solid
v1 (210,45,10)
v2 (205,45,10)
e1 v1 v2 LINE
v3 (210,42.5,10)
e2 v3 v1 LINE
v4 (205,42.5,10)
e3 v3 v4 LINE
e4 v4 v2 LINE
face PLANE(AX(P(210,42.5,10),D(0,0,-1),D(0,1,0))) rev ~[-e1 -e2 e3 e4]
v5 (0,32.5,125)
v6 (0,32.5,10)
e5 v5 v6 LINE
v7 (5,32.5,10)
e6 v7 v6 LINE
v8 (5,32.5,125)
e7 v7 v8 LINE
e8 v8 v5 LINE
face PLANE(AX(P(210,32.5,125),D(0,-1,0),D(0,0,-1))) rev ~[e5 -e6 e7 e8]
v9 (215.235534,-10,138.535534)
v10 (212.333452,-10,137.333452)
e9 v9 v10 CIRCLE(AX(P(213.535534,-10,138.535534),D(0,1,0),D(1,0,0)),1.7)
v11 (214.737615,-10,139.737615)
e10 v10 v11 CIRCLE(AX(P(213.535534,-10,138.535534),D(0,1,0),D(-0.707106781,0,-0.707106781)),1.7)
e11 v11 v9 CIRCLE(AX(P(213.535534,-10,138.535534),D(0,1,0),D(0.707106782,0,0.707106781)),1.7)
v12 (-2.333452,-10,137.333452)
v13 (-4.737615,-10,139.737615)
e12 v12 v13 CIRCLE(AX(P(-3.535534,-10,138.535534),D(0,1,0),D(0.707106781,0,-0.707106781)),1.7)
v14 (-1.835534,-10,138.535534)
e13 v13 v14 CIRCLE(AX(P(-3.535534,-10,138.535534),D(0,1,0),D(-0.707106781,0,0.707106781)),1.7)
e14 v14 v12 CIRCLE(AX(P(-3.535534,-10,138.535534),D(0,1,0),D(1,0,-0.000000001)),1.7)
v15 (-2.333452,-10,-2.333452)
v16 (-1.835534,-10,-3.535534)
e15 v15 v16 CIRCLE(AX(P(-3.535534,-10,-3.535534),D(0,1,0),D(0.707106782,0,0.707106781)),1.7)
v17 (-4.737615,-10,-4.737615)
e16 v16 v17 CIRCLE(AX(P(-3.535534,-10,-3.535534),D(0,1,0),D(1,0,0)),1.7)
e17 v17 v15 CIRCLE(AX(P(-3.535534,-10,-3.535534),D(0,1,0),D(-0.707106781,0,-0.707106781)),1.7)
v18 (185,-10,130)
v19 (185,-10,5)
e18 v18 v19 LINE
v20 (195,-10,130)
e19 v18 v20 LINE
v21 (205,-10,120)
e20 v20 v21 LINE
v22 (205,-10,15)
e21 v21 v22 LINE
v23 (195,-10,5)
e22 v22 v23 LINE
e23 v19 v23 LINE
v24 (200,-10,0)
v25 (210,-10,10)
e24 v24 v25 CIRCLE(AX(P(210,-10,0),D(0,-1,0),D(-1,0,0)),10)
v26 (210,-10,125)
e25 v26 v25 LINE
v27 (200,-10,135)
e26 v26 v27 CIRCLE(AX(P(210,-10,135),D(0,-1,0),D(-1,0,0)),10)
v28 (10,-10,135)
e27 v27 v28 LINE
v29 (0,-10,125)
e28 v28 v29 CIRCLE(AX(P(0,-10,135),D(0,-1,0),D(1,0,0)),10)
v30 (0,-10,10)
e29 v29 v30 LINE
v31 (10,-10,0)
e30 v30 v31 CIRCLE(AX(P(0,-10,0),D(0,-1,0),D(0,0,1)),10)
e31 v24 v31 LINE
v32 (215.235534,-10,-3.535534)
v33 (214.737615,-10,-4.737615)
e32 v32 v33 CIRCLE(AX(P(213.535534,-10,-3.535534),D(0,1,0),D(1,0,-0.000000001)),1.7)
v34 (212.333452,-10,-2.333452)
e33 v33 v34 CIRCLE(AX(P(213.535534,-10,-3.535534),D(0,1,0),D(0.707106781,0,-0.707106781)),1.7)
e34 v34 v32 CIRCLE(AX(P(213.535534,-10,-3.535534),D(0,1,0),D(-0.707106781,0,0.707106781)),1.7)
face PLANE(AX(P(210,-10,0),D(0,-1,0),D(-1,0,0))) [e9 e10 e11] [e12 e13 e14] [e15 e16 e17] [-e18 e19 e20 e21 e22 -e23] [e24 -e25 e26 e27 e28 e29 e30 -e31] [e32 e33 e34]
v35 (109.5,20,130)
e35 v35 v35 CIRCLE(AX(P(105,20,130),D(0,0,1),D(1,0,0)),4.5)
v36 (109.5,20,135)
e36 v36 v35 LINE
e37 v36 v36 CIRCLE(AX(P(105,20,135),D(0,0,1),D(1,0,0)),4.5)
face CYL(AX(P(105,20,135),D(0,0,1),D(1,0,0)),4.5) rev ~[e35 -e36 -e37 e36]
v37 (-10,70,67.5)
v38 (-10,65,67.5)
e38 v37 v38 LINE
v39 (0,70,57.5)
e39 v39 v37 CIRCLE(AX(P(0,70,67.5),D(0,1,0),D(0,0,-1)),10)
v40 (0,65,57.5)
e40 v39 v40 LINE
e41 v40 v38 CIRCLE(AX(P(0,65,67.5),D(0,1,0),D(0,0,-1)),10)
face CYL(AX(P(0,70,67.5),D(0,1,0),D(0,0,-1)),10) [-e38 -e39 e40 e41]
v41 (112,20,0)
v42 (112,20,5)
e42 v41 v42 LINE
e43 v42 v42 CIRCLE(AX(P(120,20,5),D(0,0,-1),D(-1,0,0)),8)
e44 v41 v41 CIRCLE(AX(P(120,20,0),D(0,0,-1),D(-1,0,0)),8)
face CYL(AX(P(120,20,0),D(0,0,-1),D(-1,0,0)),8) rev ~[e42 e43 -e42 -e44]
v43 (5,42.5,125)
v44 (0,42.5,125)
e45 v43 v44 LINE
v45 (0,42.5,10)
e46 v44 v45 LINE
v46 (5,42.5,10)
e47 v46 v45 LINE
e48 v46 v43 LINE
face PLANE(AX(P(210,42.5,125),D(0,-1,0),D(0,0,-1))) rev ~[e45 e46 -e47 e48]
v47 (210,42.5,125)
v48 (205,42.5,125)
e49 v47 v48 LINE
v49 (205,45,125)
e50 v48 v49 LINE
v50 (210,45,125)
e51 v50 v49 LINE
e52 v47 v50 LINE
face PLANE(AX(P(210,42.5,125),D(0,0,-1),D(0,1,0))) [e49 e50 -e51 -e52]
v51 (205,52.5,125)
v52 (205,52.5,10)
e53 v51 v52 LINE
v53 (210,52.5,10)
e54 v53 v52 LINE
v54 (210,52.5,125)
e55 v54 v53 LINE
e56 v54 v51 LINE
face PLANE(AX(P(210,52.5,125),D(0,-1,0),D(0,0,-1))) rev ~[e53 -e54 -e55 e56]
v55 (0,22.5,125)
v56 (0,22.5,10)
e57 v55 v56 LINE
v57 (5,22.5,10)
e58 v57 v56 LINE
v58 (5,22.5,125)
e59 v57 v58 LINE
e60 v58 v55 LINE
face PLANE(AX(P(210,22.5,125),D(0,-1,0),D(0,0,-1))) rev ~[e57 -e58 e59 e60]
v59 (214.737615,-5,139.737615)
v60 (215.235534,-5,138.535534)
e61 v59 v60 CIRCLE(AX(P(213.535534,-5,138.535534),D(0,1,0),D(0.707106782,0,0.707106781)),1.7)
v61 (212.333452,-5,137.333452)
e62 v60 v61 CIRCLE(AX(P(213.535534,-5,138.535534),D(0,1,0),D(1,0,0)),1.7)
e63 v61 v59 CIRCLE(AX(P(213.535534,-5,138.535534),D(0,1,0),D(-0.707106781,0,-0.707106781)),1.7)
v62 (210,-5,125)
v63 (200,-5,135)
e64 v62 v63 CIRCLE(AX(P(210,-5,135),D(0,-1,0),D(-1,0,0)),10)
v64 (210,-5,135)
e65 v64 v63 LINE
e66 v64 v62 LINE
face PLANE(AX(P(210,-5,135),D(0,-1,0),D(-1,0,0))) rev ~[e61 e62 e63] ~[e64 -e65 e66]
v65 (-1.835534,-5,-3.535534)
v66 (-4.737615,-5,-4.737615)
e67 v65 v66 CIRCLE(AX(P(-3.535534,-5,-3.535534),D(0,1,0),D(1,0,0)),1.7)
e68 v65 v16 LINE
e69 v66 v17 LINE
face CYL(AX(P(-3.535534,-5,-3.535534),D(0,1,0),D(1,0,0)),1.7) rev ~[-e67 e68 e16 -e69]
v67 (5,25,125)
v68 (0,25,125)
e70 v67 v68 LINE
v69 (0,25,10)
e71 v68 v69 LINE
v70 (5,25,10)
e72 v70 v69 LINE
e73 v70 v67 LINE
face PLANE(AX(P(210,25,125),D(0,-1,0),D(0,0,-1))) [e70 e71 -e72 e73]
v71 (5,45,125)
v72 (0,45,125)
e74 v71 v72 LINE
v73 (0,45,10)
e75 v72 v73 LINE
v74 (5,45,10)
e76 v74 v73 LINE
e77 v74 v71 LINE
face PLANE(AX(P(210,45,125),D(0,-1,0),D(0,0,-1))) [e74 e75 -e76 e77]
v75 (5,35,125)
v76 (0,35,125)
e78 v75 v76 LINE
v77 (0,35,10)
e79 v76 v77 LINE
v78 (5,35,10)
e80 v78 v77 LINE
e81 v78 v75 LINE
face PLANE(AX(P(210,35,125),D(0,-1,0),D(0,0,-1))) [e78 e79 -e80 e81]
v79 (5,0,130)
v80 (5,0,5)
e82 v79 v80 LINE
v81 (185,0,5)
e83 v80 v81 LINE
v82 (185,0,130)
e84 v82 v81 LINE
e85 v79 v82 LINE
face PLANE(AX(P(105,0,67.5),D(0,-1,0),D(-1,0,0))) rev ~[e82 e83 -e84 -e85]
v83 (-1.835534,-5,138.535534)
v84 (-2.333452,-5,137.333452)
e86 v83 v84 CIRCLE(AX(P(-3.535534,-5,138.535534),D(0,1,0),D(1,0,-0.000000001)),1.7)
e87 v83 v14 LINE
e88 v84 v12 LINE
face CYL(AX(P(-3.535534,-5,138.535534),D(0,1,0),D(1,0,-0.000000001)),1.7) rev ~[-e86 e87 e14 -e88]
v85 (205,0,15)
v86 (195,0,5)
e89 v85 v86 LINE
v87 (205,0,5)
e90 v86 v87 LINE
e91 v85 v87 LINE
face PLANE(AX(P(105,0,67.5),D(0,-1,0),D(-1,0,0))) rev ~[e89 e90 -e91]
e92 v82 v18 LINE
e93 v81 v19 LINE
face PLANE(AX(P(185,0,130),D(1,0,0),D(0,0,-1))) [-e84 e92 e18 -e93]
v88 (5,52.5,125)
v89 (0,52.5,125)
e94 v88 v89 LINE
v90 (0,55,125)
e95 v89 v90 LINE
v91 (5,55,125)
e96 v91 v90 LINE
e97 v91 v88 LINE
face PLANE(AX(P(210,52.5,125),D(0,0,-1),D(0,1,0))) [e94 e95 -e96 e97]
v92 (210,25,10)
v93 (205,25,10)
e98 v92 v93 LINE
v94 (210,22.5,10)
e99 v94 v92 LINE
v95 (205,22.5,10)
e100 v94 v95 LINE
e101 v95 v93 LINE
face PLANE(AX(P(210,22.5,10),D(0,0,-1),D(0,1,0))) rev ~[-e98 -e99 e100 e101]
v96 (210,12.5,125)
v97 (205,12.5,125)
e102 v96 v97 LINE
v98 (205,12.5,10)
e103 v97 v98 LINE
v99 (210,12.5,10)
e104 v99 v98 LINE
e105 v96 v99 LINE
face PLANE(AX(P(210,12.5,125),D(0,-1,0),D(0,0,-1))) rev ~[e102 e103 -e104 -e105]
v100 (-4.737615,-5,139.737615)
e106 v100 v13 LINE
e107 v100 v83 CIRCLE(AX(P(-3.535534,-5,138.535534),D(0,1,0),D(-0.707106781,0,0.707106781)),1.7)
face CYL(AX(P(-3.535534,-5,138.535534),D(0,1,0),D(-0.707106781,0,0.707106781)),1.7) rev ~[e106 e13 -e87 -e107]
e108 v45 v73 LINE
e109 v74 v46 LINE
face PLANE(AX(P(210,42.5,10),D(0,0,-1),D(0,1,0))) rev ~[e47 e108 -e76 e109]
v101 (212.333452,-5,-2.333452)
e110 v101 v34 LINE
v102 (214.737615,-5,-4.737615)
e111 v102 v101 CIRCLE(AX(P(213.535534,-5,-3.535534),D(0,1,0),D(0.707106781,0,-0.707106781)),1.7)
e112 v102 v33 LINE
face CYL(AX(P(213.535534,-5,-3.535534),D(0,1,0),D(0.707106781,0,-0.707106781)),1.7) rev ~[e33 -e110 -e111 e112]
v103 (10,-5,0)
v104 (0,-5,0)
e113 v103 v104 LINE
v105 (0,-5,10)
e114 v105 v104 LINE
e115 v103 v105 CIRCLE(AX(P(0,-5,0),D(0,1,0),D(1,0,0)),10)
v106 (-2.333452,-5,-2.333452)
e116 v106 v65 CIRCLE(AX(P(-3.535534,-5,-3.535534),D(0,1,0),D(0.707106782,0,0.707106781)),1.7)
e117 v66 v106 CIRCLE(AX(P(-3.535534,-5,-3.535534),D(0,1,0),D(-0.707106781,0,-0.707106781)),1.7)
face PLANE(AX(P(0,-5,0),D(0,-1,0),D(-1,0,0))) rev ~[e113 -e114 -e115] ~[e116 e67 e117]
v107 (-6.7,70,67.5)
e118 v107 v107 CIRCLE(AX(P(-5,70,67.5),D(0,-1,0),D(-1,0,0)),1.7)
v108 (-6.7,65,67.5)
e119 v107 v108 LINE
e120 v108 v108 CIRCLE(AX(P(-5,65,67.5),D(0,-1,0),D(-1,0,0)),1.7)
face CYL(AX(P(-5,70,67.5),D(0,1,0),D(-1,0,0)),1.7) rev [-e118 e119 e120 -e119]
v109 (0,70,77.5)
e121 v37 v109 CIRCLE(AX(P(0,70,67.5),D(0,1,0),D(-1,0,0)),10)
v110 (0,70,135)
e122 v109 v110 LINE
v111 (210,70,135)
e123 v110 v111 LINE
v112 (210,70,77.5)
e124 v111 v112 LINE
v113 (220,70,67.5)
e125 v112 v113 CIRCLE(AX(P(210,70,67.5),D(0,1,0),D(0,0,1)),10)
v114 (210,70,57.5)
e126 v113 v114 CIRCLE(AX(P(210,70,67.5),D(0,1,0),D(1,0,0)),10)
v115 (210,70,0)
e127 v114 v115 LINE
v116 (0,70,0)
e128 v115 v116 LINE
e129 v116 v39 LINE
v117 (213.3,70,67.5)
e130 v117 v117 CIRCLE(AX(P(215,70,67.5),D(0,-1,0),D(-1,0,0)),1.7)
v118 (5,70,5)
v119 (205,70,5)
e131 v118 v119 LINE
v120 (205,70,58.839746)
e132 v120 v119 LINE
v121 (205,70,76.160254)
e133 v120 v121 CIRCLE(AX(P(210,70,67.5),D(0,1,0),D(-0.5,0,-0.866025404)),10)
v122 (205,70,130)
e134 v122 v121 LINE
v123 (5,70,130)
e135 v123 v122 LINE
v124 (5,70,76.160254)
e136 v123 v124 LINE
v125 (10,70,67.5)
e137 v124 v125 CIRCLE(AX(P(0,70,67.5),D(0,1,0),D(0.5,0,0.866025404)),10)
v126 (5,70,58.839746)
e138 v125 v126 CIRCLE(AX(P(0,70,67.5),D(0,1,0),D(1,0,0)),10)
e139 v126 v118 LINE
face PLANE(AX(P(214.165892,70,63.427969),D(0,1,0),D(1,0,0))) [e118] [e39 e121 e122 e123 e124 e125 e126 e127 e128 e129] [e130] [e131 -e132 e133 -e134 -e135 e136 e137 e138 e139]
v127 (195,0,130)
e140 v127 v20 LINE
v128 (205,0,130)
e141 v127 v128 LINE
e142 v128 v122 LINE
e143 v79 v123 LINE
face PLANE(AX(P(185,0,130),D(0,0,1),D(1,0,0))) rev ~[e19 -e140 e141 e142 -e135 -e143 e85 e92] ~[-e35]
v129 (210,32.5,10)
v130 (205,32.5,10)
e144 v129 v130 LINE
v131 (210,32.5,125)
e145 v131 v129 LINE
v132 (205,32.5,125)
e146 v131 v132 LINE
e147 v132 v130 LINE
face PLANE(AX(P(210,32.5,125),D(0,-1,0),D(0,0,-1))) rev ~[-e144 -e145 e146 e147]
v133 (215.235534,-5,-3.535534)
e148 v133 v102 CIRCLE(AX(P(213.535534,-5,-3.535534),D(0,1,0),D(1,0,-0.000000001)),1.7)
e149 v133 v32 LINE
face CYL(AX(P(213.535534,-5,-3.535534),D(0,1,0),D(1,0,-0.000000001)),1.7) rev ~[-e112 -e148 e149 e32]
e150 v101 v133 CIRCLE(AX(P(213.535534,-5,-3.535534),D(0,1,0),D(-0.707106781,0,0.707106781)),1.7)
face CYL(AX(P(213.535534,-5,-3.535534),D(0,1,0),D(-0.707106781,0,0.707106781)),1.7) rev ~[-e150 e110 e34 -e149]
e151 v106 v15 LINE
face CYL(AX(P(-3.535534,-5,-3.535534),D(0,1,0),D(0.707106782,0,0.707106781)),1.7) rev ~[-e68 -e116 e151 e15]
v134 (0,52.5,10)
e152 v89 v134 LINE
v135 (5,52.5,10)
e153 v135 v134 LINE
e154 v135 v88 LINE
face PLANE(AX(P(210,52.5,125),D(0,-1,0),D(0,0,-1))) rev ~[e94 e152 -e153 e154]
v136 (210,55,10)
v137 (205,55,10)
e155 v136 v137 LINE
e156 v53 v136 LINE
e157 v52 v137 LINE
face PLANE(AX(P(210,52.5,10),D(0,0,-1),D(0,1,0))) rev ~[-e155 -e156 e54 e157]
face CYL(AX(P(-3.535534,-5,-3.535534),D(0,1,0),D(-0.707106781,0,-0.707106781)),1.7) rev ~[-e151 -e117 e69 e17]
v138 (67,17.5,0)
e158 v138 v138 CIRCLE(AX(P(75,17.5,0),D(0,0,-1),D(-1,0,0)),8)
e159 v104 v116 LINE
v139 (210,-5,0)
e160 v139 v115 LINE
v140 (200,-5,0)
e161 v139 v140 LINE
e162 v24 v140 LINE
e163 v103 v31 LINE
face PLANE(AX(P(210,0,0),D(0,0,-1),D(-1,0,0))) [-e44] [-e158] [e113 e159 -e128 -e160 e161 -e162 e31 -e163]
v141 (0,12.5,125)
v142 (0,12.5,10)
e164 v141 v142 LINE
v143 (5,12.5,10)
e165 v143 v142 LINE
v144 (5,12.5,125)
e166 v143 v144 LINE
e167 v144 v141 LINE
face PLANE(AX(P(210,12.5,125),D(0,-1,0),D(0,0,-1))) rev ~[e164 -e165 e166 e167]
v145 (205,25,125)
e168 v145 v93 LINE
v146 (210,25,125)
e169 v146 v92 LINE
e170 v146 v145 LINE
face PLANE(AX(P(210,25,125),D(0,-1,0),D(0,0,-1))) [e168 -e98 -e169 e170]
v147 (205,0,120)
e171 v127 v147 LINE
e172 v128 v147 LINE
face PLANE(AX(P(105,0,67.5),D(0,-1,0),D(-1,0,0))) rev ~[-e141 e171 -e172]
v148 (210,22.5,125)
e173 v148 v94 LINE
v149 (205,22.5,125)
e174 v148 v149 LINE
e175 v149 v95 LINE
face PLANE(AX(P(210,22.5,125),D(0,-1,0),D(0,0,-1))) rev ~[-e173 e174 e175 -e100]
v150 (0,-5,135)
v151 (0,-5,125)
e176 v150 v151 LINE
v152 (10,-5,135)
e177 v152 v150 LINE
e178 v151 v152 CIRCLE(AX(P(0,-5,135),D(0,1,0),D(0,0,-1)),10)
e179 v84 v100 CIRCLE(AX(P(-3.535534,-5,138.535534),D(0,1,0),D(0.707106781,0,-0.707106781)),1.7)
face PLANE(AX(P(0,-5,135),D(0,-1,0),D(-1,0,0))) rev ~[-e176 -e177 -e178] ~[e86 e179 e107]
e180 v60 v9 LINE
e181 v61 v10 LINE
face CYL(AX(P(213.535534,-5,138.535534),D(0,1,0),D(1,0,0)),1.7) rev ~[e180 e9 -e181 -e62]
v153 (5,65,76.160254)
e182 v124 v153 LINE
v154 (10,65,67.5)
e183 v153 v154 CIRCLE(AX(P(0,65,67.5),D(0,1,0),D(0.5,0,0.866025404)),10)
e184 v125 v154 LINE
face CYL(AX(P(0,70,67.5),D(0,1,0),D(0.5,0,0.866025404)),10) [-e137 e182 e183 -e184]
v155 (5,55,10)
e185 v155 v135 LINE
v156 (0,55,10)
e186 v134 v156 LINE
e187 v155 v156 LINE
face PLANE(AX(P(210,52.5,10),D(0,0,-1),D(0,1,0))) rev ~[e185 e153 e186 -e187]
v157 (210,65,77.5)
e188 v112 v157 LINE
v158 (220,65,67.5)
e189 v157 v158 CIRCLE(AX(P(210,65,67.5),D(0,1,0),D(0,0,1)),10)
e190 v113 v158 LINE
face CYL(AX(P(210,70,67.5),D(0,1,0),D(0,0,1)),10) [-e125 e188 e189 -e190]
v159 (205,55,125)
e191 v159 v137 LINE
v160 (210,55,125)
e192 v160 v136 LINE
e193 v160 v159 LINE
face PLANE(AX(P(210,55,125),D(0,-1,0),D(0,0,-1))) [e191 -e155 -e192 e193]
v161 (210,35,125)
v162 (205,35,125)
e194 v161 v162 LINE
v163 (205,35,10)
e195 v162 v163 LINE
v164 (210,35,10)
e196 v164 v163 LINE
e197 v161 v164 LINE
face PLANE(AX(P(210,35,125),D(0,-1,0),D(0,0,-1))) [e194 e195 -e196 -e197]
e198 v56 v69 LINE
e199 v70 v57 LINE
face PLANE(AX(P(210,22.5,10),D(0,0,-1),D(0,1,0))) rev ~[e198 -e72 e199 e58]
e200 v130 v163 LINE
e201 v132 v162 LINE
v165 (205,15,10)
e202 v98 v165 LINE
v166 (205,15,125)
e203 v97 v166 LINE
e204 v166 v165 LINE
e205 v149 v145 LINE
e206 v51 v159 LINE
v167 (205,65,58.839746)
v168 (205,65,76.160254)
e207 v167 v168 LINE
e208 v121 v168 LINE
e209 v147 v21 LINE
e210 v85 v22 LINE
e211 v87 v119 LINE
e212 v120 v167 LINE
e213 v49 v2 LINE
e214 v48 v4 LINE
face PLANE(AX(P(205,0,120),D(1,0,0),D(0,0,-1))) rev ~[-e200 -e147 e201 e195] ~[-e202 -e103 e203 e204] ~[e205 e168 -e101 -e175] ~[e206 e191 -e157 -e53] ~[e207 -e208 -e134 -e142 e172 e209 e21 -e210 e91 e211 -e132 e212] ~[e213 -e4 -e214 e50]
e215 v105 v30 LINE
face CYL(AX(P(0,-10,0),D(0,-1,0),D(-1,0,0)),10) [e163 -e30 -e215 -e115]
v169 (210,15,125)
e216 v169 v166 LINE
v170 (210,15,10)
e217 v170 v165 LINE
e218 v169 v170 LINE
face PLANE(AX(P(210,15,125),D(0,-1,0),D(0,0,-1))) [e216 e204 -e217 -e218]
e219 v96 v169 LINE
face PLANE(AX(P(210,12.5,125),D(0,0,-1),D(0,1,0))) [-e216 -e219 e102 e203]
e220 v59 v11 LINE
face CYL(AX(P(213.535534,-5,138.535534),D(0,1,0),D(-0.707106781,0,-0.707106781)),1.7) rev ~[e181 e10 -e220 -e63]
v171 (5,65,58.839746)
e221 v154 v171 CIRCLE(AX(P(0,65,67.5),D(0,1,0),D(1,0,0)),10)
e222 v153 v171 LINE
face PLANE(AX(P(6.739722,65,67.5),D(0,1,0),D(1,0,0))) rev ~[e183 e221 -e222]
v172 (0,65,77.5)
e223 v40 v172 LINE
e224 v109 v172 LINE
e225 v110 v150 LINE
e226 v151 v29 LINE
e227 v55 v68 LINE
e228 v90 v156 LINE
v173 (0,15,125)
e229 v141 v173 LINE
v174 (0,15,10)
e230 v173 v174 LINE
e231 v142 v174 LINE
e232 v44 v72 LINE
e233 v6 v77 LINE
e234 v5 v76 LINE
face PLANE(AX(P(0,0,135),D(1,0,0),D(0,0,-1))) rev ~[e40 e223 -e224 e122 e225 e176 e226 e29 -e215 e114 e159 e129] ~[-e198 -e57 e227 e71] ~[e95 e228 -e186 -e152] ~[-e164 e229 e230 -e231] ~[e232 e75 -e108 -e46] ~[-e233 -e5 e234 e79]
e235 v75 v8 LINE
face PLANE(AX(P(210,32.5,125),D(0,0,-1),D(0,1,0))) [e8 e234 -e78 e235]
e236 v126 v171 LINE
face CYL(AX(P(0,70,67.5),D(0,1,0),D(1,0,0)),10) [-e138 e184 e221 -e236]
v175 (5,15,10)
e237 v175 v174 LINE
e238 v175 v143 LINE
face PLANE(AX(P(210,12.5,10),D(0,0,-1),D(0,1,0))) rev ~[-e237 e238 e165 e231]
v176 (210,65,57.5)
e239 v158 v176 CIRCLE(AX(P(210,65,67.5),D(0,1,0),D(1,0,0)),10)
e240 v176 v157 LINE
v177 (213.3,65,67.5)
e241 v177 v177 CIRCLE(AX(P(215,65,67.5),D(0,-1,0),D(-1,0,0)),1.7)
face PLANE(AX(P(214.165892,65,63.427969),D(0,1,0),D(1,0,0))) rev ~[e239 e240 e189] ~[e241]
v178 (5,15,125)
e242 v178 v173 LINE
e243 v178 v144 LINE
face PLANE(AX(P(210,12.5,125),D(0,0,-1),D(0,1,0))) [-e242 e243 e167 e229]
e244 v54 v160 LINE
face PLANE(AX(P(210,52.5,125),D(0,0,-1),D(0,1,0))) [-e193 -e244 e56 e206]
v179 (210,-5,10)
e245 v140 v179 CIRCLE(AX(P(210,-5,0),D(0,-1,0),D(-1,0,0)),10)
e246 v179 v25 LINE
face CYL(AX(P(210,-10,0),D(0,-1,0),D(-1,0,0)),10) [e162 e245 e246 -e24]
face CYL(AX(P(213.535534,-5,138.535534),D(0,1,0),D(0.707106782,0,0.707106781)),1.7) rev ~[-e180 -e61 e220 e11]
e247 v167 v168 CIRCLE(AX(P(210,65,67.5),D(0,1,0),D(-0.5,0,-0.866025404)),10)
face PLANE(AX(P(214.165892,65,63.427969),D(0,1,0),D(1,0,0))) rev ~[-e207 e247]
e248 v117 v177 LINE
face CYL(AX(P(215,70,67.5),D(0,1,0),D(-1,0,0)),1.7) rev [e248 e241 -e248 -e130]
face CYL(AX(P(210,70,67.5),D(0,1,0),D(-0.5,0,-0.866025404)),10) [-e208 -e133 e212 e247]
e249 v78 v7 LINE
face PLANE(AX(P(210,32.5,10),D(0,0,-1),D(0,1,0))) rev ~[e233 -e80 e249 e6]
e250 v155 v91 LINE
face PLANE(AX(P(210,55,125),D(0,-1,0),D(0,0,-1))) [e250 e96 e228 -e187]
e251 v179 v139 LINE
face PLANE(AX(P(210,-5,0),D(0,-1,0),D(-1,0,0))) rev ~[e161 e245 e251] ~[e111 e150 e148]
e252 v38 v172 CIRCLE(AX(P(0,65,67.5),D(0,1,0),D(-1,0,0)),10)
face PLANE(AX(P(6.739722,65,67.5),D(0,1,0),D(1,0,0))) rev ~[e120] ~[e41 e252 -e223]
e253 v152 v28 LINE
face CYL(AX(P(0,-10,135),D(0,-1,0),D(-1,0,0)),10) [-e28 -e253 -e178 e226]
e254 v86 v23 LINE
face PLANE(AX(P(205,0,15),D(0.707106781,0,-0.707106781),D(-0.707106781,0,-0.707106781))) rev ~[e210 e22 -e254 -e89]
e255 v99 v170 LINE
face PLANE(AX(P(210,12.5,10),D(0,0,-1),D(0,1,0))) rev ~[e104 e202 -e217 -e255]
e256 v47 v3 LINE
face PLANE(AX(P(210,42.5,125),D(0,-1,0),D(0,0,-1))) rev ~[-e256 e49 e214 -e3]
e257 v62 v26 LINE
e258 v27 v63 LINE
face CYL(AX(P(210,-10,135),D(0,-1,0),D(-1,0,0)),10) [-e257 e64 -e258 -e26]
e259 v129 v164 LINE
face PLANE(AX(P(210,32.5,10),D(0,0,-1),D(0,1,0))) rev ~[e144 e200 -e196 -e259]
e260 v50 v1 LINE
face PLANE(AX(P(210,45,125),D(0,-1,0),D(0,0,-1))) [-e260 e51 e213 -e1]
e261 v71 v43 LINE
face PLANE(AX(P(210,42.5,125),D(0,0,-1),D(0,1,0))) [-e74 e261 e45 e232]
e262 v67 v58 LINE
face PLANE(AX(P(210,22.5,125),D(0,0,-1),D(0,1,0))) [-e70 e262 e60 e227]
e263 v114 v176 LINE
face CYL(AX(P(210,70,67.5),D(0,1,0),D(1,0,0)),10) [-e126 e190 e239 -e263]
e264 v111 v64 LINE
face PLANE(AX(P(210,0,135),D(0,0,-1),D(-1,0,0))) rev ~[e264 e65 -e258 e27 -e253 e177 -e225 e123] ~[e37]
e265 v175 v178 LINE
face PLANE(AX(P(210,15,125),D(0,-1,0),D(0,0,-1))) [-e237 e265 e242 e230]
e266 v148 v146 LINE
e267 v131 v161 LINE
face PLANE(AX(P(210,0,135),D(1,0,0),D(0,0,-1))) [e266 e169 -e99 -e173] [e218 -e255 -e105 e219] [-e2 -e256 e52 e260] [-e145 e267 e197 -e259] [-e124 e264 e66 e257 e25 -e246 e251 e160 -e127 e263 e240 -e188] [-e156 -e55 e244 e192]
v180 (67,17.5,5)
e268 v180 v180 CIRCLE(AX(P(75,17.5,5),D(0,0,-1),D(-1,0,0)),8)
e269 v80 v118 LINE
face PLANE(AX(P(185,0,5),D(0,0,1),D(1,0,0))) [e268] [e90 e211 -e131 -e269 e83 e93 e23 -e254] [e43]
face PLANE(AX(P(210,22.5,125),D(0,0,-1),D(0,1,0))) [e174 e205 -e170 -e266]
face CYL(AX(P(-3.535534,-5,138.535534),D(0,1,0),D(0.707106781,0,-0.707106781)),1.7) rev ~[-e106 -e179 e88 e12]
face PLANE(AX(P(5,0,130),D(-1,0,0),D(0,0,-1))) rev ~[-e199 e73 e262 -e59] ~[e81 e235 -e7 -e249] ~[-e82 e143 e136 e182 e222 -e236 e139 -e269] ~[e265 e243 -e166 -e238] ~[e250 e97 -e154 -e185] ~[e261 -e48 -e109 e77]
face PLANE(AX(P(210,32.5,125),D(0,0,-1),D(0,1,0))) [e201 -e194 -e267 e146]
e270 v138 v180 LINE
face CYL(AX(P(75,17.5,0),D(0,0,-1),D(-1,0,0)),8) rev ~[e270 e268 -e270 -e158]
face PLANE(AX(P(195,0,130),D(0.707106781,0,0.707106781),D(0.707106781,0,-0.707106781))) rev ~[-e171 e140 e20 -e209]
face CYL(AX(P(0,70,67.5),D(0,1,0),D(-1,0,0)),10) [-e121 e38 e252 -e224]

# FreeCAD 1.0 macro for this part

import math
import FreeCAD as App
import Part
import Sketcher
from FreeCAD import Vector

doc = App.newDocument("Part")
params = doc.addObject("Spreadsheet::Sheet", "Params")
for row, (alias, value) in enumerate([
    ("sketch1_width", "210 mm"),
    ("sketch1_width2", "200 mm"),
    ("sketch1_height", "135 mm"),
    ("sketch1_height2", "125 mm"),
    ("pad1_length", "70 mm"),
    ("sketch2_width", "210 mm"),
    ("sketch2_height", "135 mm"),
    ("pad2_length", "10 mm"),
    ("sketch3_diameter", "20 mm"),
    ("pad3_length", "5 mm"),
    ("sketch4_radius", "1.7 mm"),
    ("pocket1_length", "5 mm"),
    ("sketch5_height", "105 mm"),
    ("sketch5_height2", "125 mm"),
    ("pocket2_length", "10 mm"),
    ("sketch6_width", "10 mm"),
    ("sketch6_height", "125 mm"),
    ("pocket3_length", "10 mm"),
    ("sketch7_radius", "10 mm"),
    ("sketch7_diameter", "3.4 mm"),
    ("pad4_length", "5 mm"),
    ("sketch8_diameter", "16 mm"),
    ("pocket4_length", "10 mm"),
    ("sketch9_diameter", "9 mm"),
    ("pocket5_length", "10 mm"),
    ("sketch10_height", "115 mm"),
    ("sketch10_width", "2.5 mm"),
    ("pocket6_length", "220 mm"),
], start=1):
    params.set(f"A{row}", alias)
    params.set(f"B{row}", "=" + value)
    params.setAlias(f"B{row}", alias)

body = doc.addObject("PartDesign::Body", "Body")

# Sketch on XZ plane
sketch1 = body.newObject("Sketcher::SketchObject", "Sketch")
sketch1.AttachmentSupport = (doc.getObject("XZ_Plane"), [""])
sketch1.MapMode = "FlatFace"
sketch1.addGeometry(Part.LineSegment(Vector(210, 0, 0), Vector(0, 0, 0)), False)
sketch1.addGeometry(Part.LineSegment(Vector(0, 0, 0), Vector(0, 135, 0)), False)
sketch1.addGeometry(Part.LineSegment(Vector(0, 135, 0), Vector(210, 135, 0)), False)
sketch1.addGeometry(Part.LineSegment(Vector(210, 135, 0), Vector(210, 0, 0)), False)
sketch1.addGeometry(Part.LineSegment(Vector(205, 130, 0), Vector(5, 130, 0)), False)
sketch1.addGeometry(Part.LineSegment(Vector(5, 130, 0), Vector(5, 5, 0)), False)
sketch1.addGeometry(Part.LineSegment(Vector(5, 5, 0), Vector(205, 5, 0)), False)
sketch1.addGeometry(Part.LineSegment(Vector(205, 5, 0), Vector(205, 130, 0)), False)
sketch1.addConstraint(Sketcher.Constraint("Coincident", 0, 2, 1, 1))
sketch1.addConstraint(Sketcher.Constraint("Coincident", 1, 2, 2, 1))
sketch1.addConstraint(Sketcher.Constraint("Coincident", 2, 2, 3, 1))
sketch1.addConstraint(Sketcher.Constraint("Coincident", 3, 2, 0, 1))
sketch1.addConstraint(Sketcher.Constraint("Coincident", 4, 2, 5, 1))
sketch1.addConstraint(Sketcher.Constraint("Coincident", 5, 2, 6, 1))
sketch1.addConstraint(Sketcher.Constraint("Coincident", 6, 2, 7, 1))
sketch1.addConstraint(Sketcher.Constraint("Coincident", 7, 2, 4, 1))
sketch1.addConstraint(Sketcher.Constraint("Horizontal", 0))
sketch1.addConstraint(Sketcher.Constraint("Vertical", 1))
sketch1.addConstraint(Sketcher.Constraint("Horizontal", 2))
sketch1.addConstraint(Sketcher.Constraint("Vertical", 3))
sketch1.addConstraint(Sketcher.Constraint("Horizontal", 4))
sketch1.addConstraint(Sketcher.Constraint("Vertical", 5))
sketch1.addConstraint(Sketcher.Constraint("Horizontal", 6))
sketch1.addConstraint(Sketcher.Constraint("Vertical", 7))
sketch1.addConstraint(Sketcher.Constraint("Coincident", 0, 2, -1, 1))
sketch1.addConstraint(Sketcher.Constraint("DistanceX", 0, 2, 0, 1, 210.0))
sketch1.addConstraint(Sketcher.Constraint("DistanceX", 4, 2, 4, 1, 200.0))
sketch1.addConstraint(Sketcher.Constraint("DistanceY", 1, 1, 1, 2, 135.0))
sketch1.addConstraint(Sketcher.Constraint("DistanceY", 5, 2, 5, 1, 125.0))
sketch1.addConstraint(Sketcher.Constraint("DistanceX", -1, 1, 4, 2, 5.0))
sketch1.addConstraint(Sketcher.Constraint("DistanceY", -1, 1, 4, 2, 130.0))
sketch1.setExpression("Constraints[17]", "Params.sketch1_width")
sketch1.setExpression("Constraints[18]", "Params.sketch1_width2")
sketch1.setExpression("Constraints[19]", "Params.sketch1_height")
sketch1.setExpression("Constraints[20]", "Params.sketch1_height2")
pad1 = body.newObject("PartDesign::Pad", "Pad")
pad1.Profile = sketch1
pad1.setExpression("Length", "Params.pad1_length")
pad1.Reversed = True

# Sketch on XZ plane
sketch2 = body.newObject("Sketcher::SketchObject", "Sketch001")
sketch2.AttachmentSupport = (doc.getObject("XZ_Plane"), [""])
sketch2.MapMode = "FlatFace"
sketch2.addGeometry(Part.LineSegment(Vector(210, 0, 0), Vector(210, 135, 0)), False)
sketch2.addGeometry(Part.LineSegment(Vector(210, 135, 0), Vector(0, 135, 0)), False)
sketch2.addGeometry(Part.LineSegment(Vector(0, 135, 0), Vector(0, 0, 0)), False)
sketch2.addGeometry(Part.LineSegment(Vector(0, 0, 0), Vector(210, 0, 0)), False)
sketch2.addConstraint(Sketcher.Constraint("Coincident", 0, 2, 1, 1))
sketch2.addConstraint(Sketcher.Constraint("Coincident", 1, 2, 2, 1))
sketch2.addConstraint(Sketcher.Constraint("Coincident", 2, 2, 3, 1))
sketch2.addConstraint(Sketcher.Constraint("Coincident", 3, 2, 0, 1))
sketch2.addConstraint(Sketcher.Constraint("Vertical", 0))
sketch2.addConstraint(Sketcher.Constraint("Horizontal", 1))
sketch2.addConstraint(Sketcher.Constraint("Vertical", 2))
sketch2.addConstraint(Sketcher.Constraint("Horizontal", 3))
sketch2.addConstraint(Sketcher.Constraint("Coincident", 2, 2, -1, 1))
sketch2.addConstraint(Sketcher.Constraint("DistanceX", 1, 2, 1, 1, 210.0))
sketch2.addConstraint(Sketcher.Constraint("DistanceY", 0, 1, 0, 2, 135.0))
sketch2.setExpression("Constraints[9]", "Params.sketch2_width")
sketch2.setExpression("Constraints[10]", "Params.sketch2_height")
pad2 = body.newObject("PartDesign::Pad", "Pad001")
pad2.Profile = sketch2
pad2.setExpression("Length", "Params.pad2_length")

# Sketch on XZ plane
sketch3 = body.newObject("Sketcher::SketchObject", "Sketch002")
sketch3.AttachmentSupport = (doc.getObject("XZ_Plane"), [""])
sketch3.MapMode = "FlatFace"
sketch3.AttachmentOffset = App.Placement(Vector(0, 0, 10), App.Rotation())
sketch3.addGeometry(Part.Circle(Vector(210, 0, 0), Vector(0, 0, 1), 10), False)
sketch3.addGeometry(Part.Circle(Vector(0, 0, 0), Vector(0, 0, 1), 10), False)
sketch3.addGeometry(Part.Circle(Vector(0, 135, 0), Vector(0, 0, 1), 10), False)
sketch3.addGeometry(Part.Circle(Vector(210, 135, 0), Vector(0, 0, 1), 10), False)
sketch3.addConstraint(Sketcher.Constraint("Coincident", 1, 3, -1, 1))
sketch3.addConstraint(Sketcher.Constraint("Equal", 0, 1))
sketch3.addConstraint(Sketcher.Constraint("Equal", 1, 2))
sketch3.addConstraint(Sketcher.Constraint("Equal", 2, 3))
sketch3.addConstraint(Sketcher.Constraint("PointOnObject", 0, 3, -1))
sketch3.addConstraint(Sketcher.Constraint("PointOnObject", 2, 3, -2))
sketch3.addConstraint(Sketcher.Constraint("Horizontal", 2, 3, 3, 3))
sketch3.addConstraint(Sketcher.Constraint("Vertical", 0, 3, 3, 3))
sketch3.addConstraint(Sketcher.Constraint("Diameter", 0, 20.0))
sketch3.addConstraint(Sketcher.Constraint("DistanceX", -1, 1, 0, 3, 210.0))
sketch3.addConstraint(Sketcher.Constraint("DistanceY", -1, 1, 2, 3, 135.0))
sketch3.setExpression("Constraints[8]", "Params.sketch3_diameter")
pad3 = body.newObject("PartDesign::Pad", "Pad002")
pad3.Profile = sketch3
pad3.setExpression("Length", "Params.pad3_length")
pad3.Reversed = True

# Sketch on XZ plane
sketch4 = body.newObject("Sketcher::SketchObject", "Sketch003")
sketch4.AttachmentSupport = (doc.getObject("XZ_Plane"), [""])
sketch4.MapMode = "FlatFace"
sketch4.AttachmentOffset = App.Placement(Vector(0, 0, 5), App.Rotation())
sketch4.addGeometry(Part.ArcOfCircle(Part.Circle(Vector(213.5, 138.5, 0), Vector(0, 0, 1), 1.7), math.radians(-135), math.radians(0)), False)
sketch4.addGeometry(Part.ArcOfCircle(Part.Circle(Vector(213.5, 138.5, 0), Vector(0, 0, 1), 1.7), math.radians(45), math.radians(225)), False)
sketch4.addGeometry(Part.ArcOfCircle(Part.Circle(Vector(213.5, 138.5, 0), Vector(0, 0, 1), 1.7), math.radians(0), math.radians(45)), False)
sketch4.addGeometry(Part.ArcOfCircle(Part.Circle(Vector(213.5, -3.5, 0), Vector(0, 0, 1), 1.7), math.radians(135), math.radians(315)), False)
sketch4.addGeometry(Part.ArcOfCircle(Part.Circle(Vector(213.5, -3.5, 0), Vector(0, 0, 1), 1.7), math.radians(0), math.radians(135)), False)
sketch4.addGeometry(Part.ArcOfCircle(Part.Circle(Vector(213.5, -3.5, 0), Vector(0, 0, 1), 1.7), math.radians(-45), math.radians(0)), False)
sketch4.addGeometry(Part.ArcOfCircle(Part.Circle(Vector(-3.5, -3.5, 0), Vector(0, 0, 1), 1.7), math.radians(45), math.radians(225)), False)
sketch4.addGeometry(Part.ArcOfCircle(Part.Circle(Vector(-3.5, -3.5, 0), Vector(0, 0, 1), 1.7), math.radians(0), math.radians(45)), False)
sketch4.addGeometry(Part.ArcOfCircle(Part.Circle(Vector(-3.5, -3.5, 0), Vector(0, 0, 1), 1.7), math.radians(-135), math.radians(0)), False)
sketch4.addGeometry(Part.ArcOfCircle(Part.Circle(Vector(-3.5, 138.5, 0), Vector(0, 0, 1), 1.7), math.radians(-45), math.radians(0)), False)
sketch4.addGeometry(Part.ArcOfCircle(Part.Circle(Vector(-3.5, 138.5, 0), Vector(0, 0, 1), 1.7), math.radians(135), math.radians(315)), False)
sketch4.addGeometry(Part.ArcOfCircle(Part.Circle(Vector(-3.5, 138.5, 0), Vector(0, 0, 1), 1.7), math.radians(0), math.radians(135)), False)
sketch4.addConstraint(Sketcher.Constraint("Tangent", 0, 1, 1, 2))
sketch4.addConstraint(Sketcher.Constraint("Tangent", 1, 1, 2, 2))
sketch4.addConstraint(Sketcher.Constraint("Tangent", 2, 1, 0, 2))
sketch4.addConstraint(Sketcher.Constraint("Tangent", 3, 1, 4, 2))
sketch4.addConstraint(Sketcher.Constraint("Tangent", 4, 1, 5, 2))
sketch4.addConstraint(Sketcher.Constraint("Tangent", 5, 1, 3, 2))
sketch4.addConstraint(Sketcher.Constraint("Tangent", 6, 1, 7, 2))
sketch4.addConstraint(Sketcher.Constraint("Tangent", 7, 1, 8, 2))
sketch4.addConstraint(Sketcher.Constraint("Tangent", 8, 1, 6, 2))
sketch4.addConstraint(Sketcher.Constraint("Tangent", 9, 1, 10, 2))
sketch4.addConstraint(Sketcher.Constraint("Tangent", 10, 1, 11, 2))
sketch4.addConstraint(Sketcher.Constraint("Tangent", 11, 1, 9, 2))
sketch4.addConstraint(Sketcher.Constraint("Equal", 2, 3))
sketch4.addConstraint(Sketcher.Constraint("Equal", 5, 6))
sketch4.addConstraint(Sketcher.Constraint("Equal", 8, 9))
sketch4.addConstraint(Sketcher.Constraint("Horizontal", 5, 3, 6, 3))
sketch4.addConstraint(Sketcher.Constraint("Horizontal", 2, 3, 9, 3))
sketch4.addConstraint(Sketcher.Constraint("Horizontal", 11, 3, 2, 1))
sketch4.addConstraint(Sketcher.Constraint("Horizontal", 8, 3, 4, 1))
sketch4.addConstraint(Sketcher.Constraint("Horizontal", 3, 1, 6, 1))
sketch4.addConstraint(Sketcher.Constraint("Horizontal", 4, 1, 7, 1))
sketch4.addConstraint(Sketcher.Constraint("Horizontal", 5, 1, 8, 1))
sketch4.addConstraint(Sketcher.Constraint("Horizontal", 0, 1, 9, 1))
sketch4.addConstraint(Sketcher.Constraint("Horizontal", 1, 1, 10, 1))
sketch4.addConstraint(Sketcher.Constraint("Horizontal", 2, 1, 11, 1))
sketch4.addConstraint(Sketcher.Constraint("Vertical", 2, 3, 3, 3))
sketch4.addConstraint(Sketcher.Constraint("Vertical", 8, 3, 9, 3))
sketch4.addConstraint(Sketcher.Constraint("Vertical", 0, 1, 3, 1))
sketch4.addConstraint(Sketcher.Constraint("Vertical", 1, 1, 5, 1))
sketch4.addConstraint(Sketcher.Constraint("Radius", 0, 1.7))
sketch4.addConstraint(Sketcher.Constraint("DistanceX", 0, 1, 2, 3, 1.202082))
sketch4.addConstraint(Sketcher.Constraint("DistanceX", 0, 3, 1, 1, 1.202082))
sketch4.addConstraint(Sketcher.Constraint("DistanceY", 5, 3, 1, 1, 143.273149))
sketch4.addConstraint(Sketcher.Constraint("DistanceX", -1, 1, 0, 3, 213.535534))
sketch4.addConstraint(Sketcher.Constraint("DistanceY", -1, 1, 0, 3, 138.535534))
sketch4.addConstraint(Sketcher.Constraint("DistanceX", 6, 3, -1, 1, 3.535534))
sketch4.setExpression("Constraints[29]", "Params.sketch4_radius")
pocket1 = body.newObject("PartDesign::Pocket", "Pocket")
pocket1.Profile = sketch4
pocket1.setExpression("Length", "Params.pocket1_length")
pocket1.Reversed = True

# Sketch on XZ plane
sketch5 = body.newObject("Sketcher::SketchObject", "Sketch004")
sketch5.AttachmentSupport = (doc.getObject("XZ_Plane"), [""])
sketch5.MapMode = "FlatFace"
sketch5.addGeometry(Part.LineSegment(Vector(195, 130, 0), Vector(205, 120, 0)), False)
sketch5.addGeometry(Part.LineSegment(Vector(205, 120, 0), Vector(205, 15, 0)), False)
sketch5.addGeometry(Part.LineSegment(Vector(205, 15, 0), Vector(195, 5, 0)), False)
sketch5.addGeometry(Part.LineSegment(Vector(195, 5, 0), Vector(195, 130, 0)), False)
sketch5.addConstraint(Sketcher.Constraint("Coincident", 0, 2, 1, 1))
sketch5.addConstraint(Sketcher.Constraint("Coincident", 1, 2, 2, 1))
sketch5.addConstraint(Sketcher.Constraint("Coincident", 2, 2, 3, 1))
sketch5.addConstraint(Sketcher.Constraint("Coincident", 3, 2, 0, 1))
sketch5.addConstraint(Sketcher.Constraint("Vertical", 1))
sketch5.addConstraint(Sketcher.Constraint("Vertical", 3))
sketch5.addConstraint(Sketcher.Constraint("Perpendicular", 0, 2))
sketch5.addConstraint(Sketcher.Constraint("Equal", 0, 2))
sketch5.addConstraint(Sketcher.Constraint("DistanceY", 1, 2, 1, 1, 105.0))
sketch5.addConstraint(Sketcher.Constraint("DistanceY", 3, 1, 3, 2, 125.0))
sketch5.addConstraint(Sketcher.Constraint("DistanceX", -1, 1, 0, 2, 205.0))
sketch5.addConstraint(Sketcher.Constraint("DistanceY", -1, 1, 0, 2, 120.0))
sketch5.setExpression("Constraints[8]", "Params.sketch5_height")
sketch5.setExpression("Constraints[9]", "Params.sketch5_height2")
pocket2 = body.newObject("PartDesign::Pocket", "Pocket001")
pocket2.Profile = sketch5
pocket2.setExpression("Length", "Params.pocket2_length")
pocket2.Reversed = True

# Sketch on XZ plane
sketch6 = body.newObject("Sketcher::SketchObject", "Sketch005")
sketch6.AttachmentSupport = (doc.getObject("XZ_Plane"), [""])
sketch6.MapMode = "FlatFace"
sketch6.addGeometry(Part.LineSegment(Vector(185, 5, 0), Vector(185, 130, 0)), False)
sketch6.addGeometry(Part.LineSegment(Vector(185, 130, 0), Vector(195, 130, 0)), False)
sketch6.addGeometry(Part.LineSegment(Vector(195, 130, 0), Vector(195, 5, 0)), False)
sketch6.addGeometry(Part.LineSegment(Vector(195, 5, 0), Vector(185, 5, 0)), False)
sketch6.addConstraint(Sketcher.Constraint("Coincident", 0, 2, 1, 1))
sketch6.addConstraint(Sketcher.Constraint("Coincident", 1, 2, 2, 1))
sketch6.addConstraint(Sketcher.Constraint("Coincident", 2, 2, 3, 1))
sketch6.addConstraint(Sketcher.Constraint("Coincident", 3, 2, 0, 1))
sketch6.addConstraint(Sketcher.Constraint("Vertical", 0))
sketch6.addConstraint(Sketcher.Constraint("Horizontal", 1))
sketch6.addConstraint(Sketcher.Constraint("Vertical", 2))
sketch6.addConstraint(Sketcher.Constraint("Horizontal", 3))
sketch6.addConstraint(Sketcher.Constraint("DistanceX", 1, 1, 1, 2, 10.0))
sketch6.addConstraint(Sketcher.Constraint("DistanceY", 0, 1, 0, 2, 125.0))
sketch6.addConstraint(Sketcher.Constraint("DistanceX", -1, 1, 0, 2, 185.0))
sketch6.addConstraint(Sketcher.Constraint("DistanceY", -1, 1, 0, 2, 130.0))
sketch6.setExpression("Constraints[8]", "Params.sketch6_width")
sketch6.setExpression("Constraints[9]", "Params.sketch6_height")
pocket3 = body.newObject("PartDesign::Pocket", "Pocket002")
pocket3.Profile = sketch6
pocket3.setExpression("Length", "Params.pocket3_length")
pocket3.Reversed = True

# Sketch on XZ plane
sketch7 = body.newObject("Sketcher::SketchObject", "Sketch006")
sketch7.AttachmentSupport = (doc.getObject("XZ_Plane"), [""])
sketch7.MapMode = "FlatFace"
sketch7.AttachmentOffset = App.Placement(Vector(0, 0, -70), App.Rotation())
sketch7.addGeometry(Part.ArcOfCircle(Part.Circle(Vector(210, 67.5, 0), Vector(0, 0, 1), 10), math.radians(0), math.radians(90)), False)
sketch7.addGeometry(Part.ArcOfCircle(Part.Circle(Vector(210, 67.5, 0), Vector(0, 0, 1), 10), math.radians(-90), math.radians(0)), False)
sketch7.addGeometry(Part.ArcOfCircle(Part.Circle(Vector(210, 67.5, 0), Vector(0, 0, 1), 10), math.radians(-120), math.radians(-90)), False)
sketch7.addGeometry(Part.ArcOfCircle(Part.Circle(Vector(210, 67.5, 0), Vector(0, 0, 1), 10), math.radians(120), math.radians(240)), False)
sketch7.addGeometry(Part.ArcOfCircle(Part.Circle(Vector(210, 67.5, 0), Vector(0, 0, 1), 10), math.radians(90), math.radians(120)), False)
sketch7.addGeometry(Part.Circle(Vector(215, 67.5, 0), Vector(0, 0, 1), 1.7), False)
sketch7.addGeometry(Part.ArcOfCircle(Part.Circle(Vector(0, 67.5, 0), Vector(0, 0, 1), 10), math.radians(60), math.radians(90)), False)
sketch7.addGeometry(Part.ArcOfCircle(Part.Circle(Vector(0, 67.5, 0), Vector(0, 0, 1), 10), math.radians(0), math.radians(60)), False)
sketch7.addGeometry(Part.ArcOfCircle(Part.Circle(Vector(0, 67.5, 0), Vector(0, 0, 1), 10), math.radians(-60), math.radians(0)), False)
sketch7.addGeometry(Part.ArcOfCircle(Part.Circle(Vector(0, 67.5, 0), Vector(0, 0, 1), 10), math.radians(-90), math.radians(-60)), False)
sketch7.addGeometry(Part.ArcOfCircle(Part.Circle(Vector(0, 67.5, 0), Vector(0, 0, 1), 10), math.radians(180), math.radians(270)), False)
sketch7.addGeometry(Part.ArcOfCircle(Part.Circle(Vector(0, 67.5, 0), Vector(0, 0, 1), 10), math.radians(90), math.radians(180)), False)
sketch7.addGeometry(Part.Circle(Vector(-5, 67.5, 0), Vector(0, 0, 1), 1.7), False)
sketch7.addConstraint(Sketcher.Constraint("Tangent", 0, 1, 1, 2))
sketch7.addConstraint(Sketcher.Constraint("Tangent", 1, 1, 2, 2))
sketch7.addConstraint(Sketcher.Constraint("Tangent", 2, 1, 3, 2))
sketch7.addConstraint(Sketcher.Constraint("Tangent", 3, 1, 4, 2))
sketch7.addConstraint(Sketcher.Constraint("Tangent", 4, 1, 0, 2))
sketch7.addConstraint(Sketcher.Constraint("Tangent", 6, 1, 7, 2))
sketch7.addConstraint(Sketcher.Constraint("Tangent", 7, 1, 8, 2))
sketch7.addConstraint(Sketcher.Constraint("Tangent", 8, 1, 9, 2))
sketch7.addConstraint(Sketcher.Constraint("Tangent", 9, 1, 10, 2))
sketch7.addConstraint(Sketcher.Constraint("Tangent", 10, 1, 11, 2))
sketch7.addConstraint(Sketcher.Constraint("Tangent", 11, 1, 6, 2))
sketch7.addConstraint(Sketcher.Constraint("Coincident", 2, 3, 0, 3))
sketch7.addConstraint(Sketcher.Constraint("Coincident", 8, 3, 6, 3))
sketch7.addConstraint(Sketcher.Constraint("Equal", 4, 6))
sketch7.addConstraint(Sketcher.Constraint("Equal", 8, 9))
sketch7.addConstraint(Sketcher.Constraint("Equal", 5, 12))
sketch7.addConstraint(Sketcher.Constraint("Symmetric", 7, 1, 10, 1, -2))
sketch7.addConstraint(Sketcher.Constraint("PointOnObject", 9, 1, -2))
sketch7.addConstraint(Sketcher.Constraint("PointOnObject", 11, 1, -2))
sketch7.addConstraint(Sketcher.Constraint("Horizontal", 4, 3, 5, 3))
sketch7.addConstraint(Sketcher.Constraint("Horizontal", 5, 3, 6, 3))
sketch7.addConstraint(Sketcher.Constraint("Horizontal", 11, 3, 12, 3))
sketch7.addConstraint(Sketcher.Constraint("Horizontal", 12, 3, 0, 1))
sketch7.addConstraint(Sketcher.Constraint("Horizontal", 3, 1, 6, 1))
sketch7.addConstraint(Sketcher.Constraint("Horizontal", 0, 1, 7, 1))
sketch7.addConstraint(Sketcher.Constraint("Horizontal", 2, 1, 8, 1))
sketch7.addConstraint(Sketcher.Constraint("Vertical", 4, 3, 1, 1))
sketch7.addConstraint(Sketcher.Constraint("Vertical", 2, 1, 3, 1))
sketch7.addConstraint(Sketcher.Constraint("Vertical", 1, 1, 4, 1))
sketch7.addConstraint(Sketcher.Constraint("Radius", 0, 10.0))
sketch7.addConstraint(Sketcher.Constraint("Diameter", 5, 3.4))
sketch7.addConstraint(Sketcher.Constraint("DistanceX", -1, 1, 0, 3, 210.0))
sketch7.addConstraint(Sketcher.Constraint("DistanceX", -1, 1, 5, 3, 215.0))
sketch7.addConstraint(Sketcher.Constraint("DistanceX", 12, 3, -1, 1, 5.0))
sketch7.addConstraint(Sketcher.Constraint("DistanceX", -1, 1, 2, 1, 205.0))
sketch7.addConstraint(Sketcher.Constraint("DistanceY", -1, 1, 0, 3, 67.5))
sketch7.setExpression("Constraints[29]", "Params.sketch7_radius")
sketch7.setExpression("Constraints[30]", "Params.sketch7_diameter")
pad4 = body.newObject("PartDesign::Pad", "Pad003")
pad4.Profile = sketch7
pad4.setExpression("Length", "Params.pad4_length")

# Sketch on XY plane
sketch8 = body.newObject("Sketcher::SketchObject", "Sketch007")
sketch8.AttachmentSupport = (doc.getObject("XY_Plane"), [""])
sketch8.MapMode = "FlatFace"
sketch8.addGeometry(Part.Circle(Vector(75, 18, 0), Vector(0, 0, 1), 8), False)
sketch8.addGeometry(Part.Circle(Vector(120, 20, 0), Vector(0, 0, 1), 8), False)
sketch8.addConstraint(Sketcher.Constraint("Equal", 0, 1))
sketch8.addConstraint(Sketcher.Constraint("Diameter", 0, 16.0))
sketch8.addConstraint(Sketcher.Constraint("DistanceX", -1, 1, 0, 3, 75.0))
sketch8.addConstraint(Sketcher.Constraint("DistanceX", -1, 1, 1, 3, 120.0))
sketch8.addConstraint(Sketcher.Constraint("DistanceY", -1, 1, 1, 3, 20.0))
sketch8.addConstraint(Sketcher.Constraint("DistanceY", -1, 1, 0, 3, 17.5))
sketch8.setExpression("Constraints[1]", "Params.sketch8_diameter")
pocket4 = body.newObject("PartDesign::Pocket", "Pocket003")
pocket4.Profile = sketch8
pocket4.setExpression("Length", "Params.pocket4_length")
pocket4.Reversed = True

# Sketch on XY plane
sketch9 = body.newObject("Sketcher::SketchObject", "Sketch008")
sketch9.AttachmentSupport = (doc.getObject("XY_Plane"), [""])
sketch9.MapMode = "FlatFace"
sketch9.AttachmentOffset = App.Placement(Vector(0, 0, 135), App.Rotation())
sketch9.addGeometry(Part.Circle(Vector(105, 20, 0), Vector(0, 0, 1), 4.5), False)
sketch9.addConstraint(Sketcher.Constraint("Diameter", 0, 9.0))
sketch9.addConstraint(Sketcher.Constraint("DistanceX", -1, 1, 0, 3, 105.0))
sketch9.addConstraint(Sketcher.Constraint("DistanceY", -1, 1, 0, 3, 20.0))
sketch9.setExpression("Constraints[0]", "Params.sketch9_diameter")
pocket5 = body.newObject("PartDesign::Pocket", "Pocket004")
pocket5.Profile = sketch9
pocket5.setExpression("Length", "Params.pocket5_length")

# Sketch on YZ plane
sketch10 = body.newObject("Sketcher::SketchObject", "Sketch009")
sketch10.AttachmentSupport = (doc.getObject("YZ_Plane"), [""])
sketch10.MapMode = "FlatFace"
sketch10.AttachmentOffset = App.Placement(Vector(0, 0, 210), App.Rotation())
sketch10.addGeometry(Part.LineSegment(Vector(45, 125, 0), Vector(42.5, 125, 0)), False)
sketch10.addGeometry(Part.LineSegment(Vector(42.5, 125, 0), Vector(42.5, 10, 0)), False)
sketch10.addGeometry(Part.LineSegment(Vector(42.5, 10, 0), Vector(45, 10, 0)), False)
sketch10.addGeometry(Part.LineSegment(Vector(45, 10, 0), Vector(45, 125, 0)), False)
sketch10.addGeometry(Part.LineSegment(Vector(55, 125, 0), Vector(52.5, 125, 0)), False)
sketch10.addGeometry(Part.LineSegment(Vector(52.5, 125, 0), Vector(52.5, 10, 0)), False)
sketch10.addGeometry(Part.LineSegment(Vector(52.5, 10, 0), Vector(55, 10, 0)), False)
sketch10.addGeometry(Part.LineSegment(Vector(55, 10, 0), Vector(55, 125, 0)), False)
sketch10.addGeometry(Part.LineSegment(Vector(35, 125, 0), Vector(32.5, 125, 0)), False)
sketch10.addGeometry(Part.LineSegment(Vector(32.5, 125, 0), Vector(32.5, 10, 0)), False)
sketch10.addGeometry(Part.LineSegment(Vector(32.5, 10, 0), Vector(35, 10, 0)), False)
sketch10.addGeometry(Part.LineSegment(Vector(35, 10, 0), Vector(35, 125, 0)), False)
sketch10.addGeometry(Part.LineSegment(Vector(25, 125, 0), Vector(22.5, 125, 0)), False)
sketch10.addGeometry(Part.LineSegment(Vector(22.5, 125, 0), Vector(22.5, 10, 0)), False)
sketch10.addGeometry(Part.LineSegment(Vector(22.5, 10, 0), Vector(25, 10, 0)), False)
sketch10.addGeometry(Part.LineSegment(Vector(25, 10, 0), Vector(25, 125, 0)), False)
sketch10.addGeometry(Part.LineSegment(Vector(15, 125, 0), Vector(12.5, 125, 0)), False)
sketch10.addGeometry(Part.LineSegment(Vector(12.5, 125, 0), Vector(12.5, 10, 0)), False)
sketch10.addGeometry(Part.LineSegment(Vector(12.5, 10, 0), Vector(15, 10, 0)), False)
sketch10.addGeometry(Part.LineSegment(Vector(15, 10, 0), Vector(15, 125, 0)), False)
sketch10.addConstraint(Sketcher.Constraint("Coincident", 0, 2, 1, 1))
sketch10.addConstraint(Sketcher.Constraint("Coincident", 1, 2, 2, 1))
sketch10.addConstraint(Sketcher.Constraint("Coincident", 2, 2, 3, 1))
sketch10.addConstraint(Sketcher.Constraint("Coincident", 3, 2, 0, 1))
sketch10.addConstraint(Sketcher.Constraint("Coincident", 4, 2, 5, 1))
sketch10.addConstraint(Sketcher.Constraint("Coincident", 5, 2, 6, 1))
sketch10.addConstraint(Sketcher.Constraint("Coincident", 6, 2, 7, 1))
sketch10.addConstraint(Sketcher.Constraint("Coincident", 7, 2, 4, 1))
sketch10.addConstraint(Sketcher.Constraint("Coincident", 8, 2, 9, 1))
sketch10.addConstraint(Sketcher.Constraint("Coincident", 9, 2, 10, 1))
sketch10.addConstraint(Sketcher.Constraint("Coincident", 10, 2, 11, 1))
sketch10.addConstraint(Sketcher.Constraint("Coincident", 11, 2, 8, 1))
sketch10.addConstraint(Sketcher.Constraint("Coincident", 12, 2, 13, 1))
sketch10.addConstraint(Sketcher.Constraint("Coincident", 13, 2, 14, 1))
sketch10.addConstraint(Sketcher.Constraint("Coincident", 14, 2, 15, 1))
sketch10.addConstraint(Sketcher.Constraint("Coincident", 15, 2, 12, 1))
sketch10.addConstraint(Sketcher.Constraint("Coincident", 16, 2, 17, 1))
sketch10.addConstraint(Sketcher.Constraint("Coincident", 17, 2, 18, 1))
sketch10.addConstraint(Sketcher.Constraint("Coincident", 18, 2, 19, 1))
sketch10.addConstraint(Sketcher.Constraint("Coincident", 19, 2, 16, 1))
sketch10.addConstraint(Sketcher.Constraint("Horizontal", 0))
sketch10.addConstraint(Sketcher.Constraint("Vertical", 1))
sketch10.addConstraint(Sketcher.Constraint("Horizontal", 2))
sketch10.addConstraint(Sketcher.Constraint("Vertical", 3))
sketch10.addConstraint(Sketcher.Constraint("Horizontal", 4))
sketch10.addConstraint(Sketcher.Constraint("Vertical", 5))
sketch10.addConstraint(Sketcher.Constraint("Horizontal", 6))
sketch10.addConstraint(Sketcher.Constraint("Vertical", 7))
sketch10.addConstraint(Sketcher.Constraint("Horizontal", 8))
sketch10.addConstraint(Sketcher.Constraint("Vertical", 9))
sketch10.addConstraint(Sketcher.Constraint("Horizontal", 10))
sketch10.addConstraint(Sketcher.Constraint("Vertical", 11))
sketch10.addConstraint(Sketcher.Constraint("Horizontal", 12))
sketch10.addConstraint(Sketcher.Constraint("Vertical", 13))
sketch10.addConstraint(Sketcher.Constraint("Horizontal", 14))
sketch10.addConstraint(Sketcher.Constraint("Vertical", 15))
sketch10.addConstraint(Sketcher.Constraint("Horizontal", 16))
sketch10.addConstraint(Sketcher.Constraint("Vertical", 17))
sketch10.addConstraint(Sketcher.Constraint("Horizontal", 18))
sketch10.addConstraint(Sketcher.Constraint("Vertical", 19))
sketch10.addConstraint(Sketcher.Constraint("Horizontal", 3, 2, 4, 2))
sketch10.addConstraint(Sketcher.Constraint("Horizontal", 2, 2, 5, 2))
sketch10.addConstraint(Sketcher.Constraint("Horizontal", 7, 2, 8, 2))
sketch10.addConstraint(Sketcher.Constraint("Horizontal", 6, 2, 9, 2))
sketch10.addConstraint(Sketcher.Constraint("Horizontal", 11, 2, 12, 2))
sketch10.addConstraint(Sketcher.Constraint("Horizontal", 10, 2, 13, 2))
sketch10.addConstraint(Sketcher.Constraint("Horizontal", 15, 2, 16, 2))
sketch10.addConstraint(Sketcher.Constraint("Horizontal", 14, 2, 17, 2))
sketch10.addConstraint(Sketcher.Constraint("Equal", 2, 4))
sketch10.addConstraint(Sketcher.Constraint("Equal", 6, 8))
sketch10.addConstraint(Sketcher.Constraint("Equal", 10, 12))
sketch10.addConstraint(Sketcher.Constraint("Equal", 14, 16))
sketch10.addConstraint(Sketcher.Constraint("DistanceY", 1, 2, 1, 1, 115.0))
sketch10.addConstraint(Sketcher.Constraint("DistanceX", 0, 2, 0, 1, 2.5))
sketch10.addConstraint(Sketcher.Constraint("DistanceY", -1, 1, 0, 2, 125.0))
sketch10.addConstraint(Sketcher.Constraint("DistanceX", -1, 1, 2, 2, 45.0))
sketch10.addConstraint(Sketcher.Constraint("DistanceX", -1, 1, 6, 2, 55.0))
sketch10.addConstraint(Sketcher.Constraint("DistanceX", -1, 1, 10, 2, 35.0))
sketch10.addConstraint(Sketcher.Constraint("DistanceX", -1, 1, 14, 2, 25.0))
sketch10.addConstraint(Sketcher.Constraint("DistanceX", -1, 1, 18, 2, 15.0))
sketch10.setExpression("Constraints[52]", "Params.sketch10_height")
sketch10.setExpression("Constraints[53]", "Params.sketch10_width")
pocket6 = body.newObject("PartDesign::Pocket", "Pocket005")
pocket6.Profile = sketch10
pocket6.setExpression("Length", "Params.pocket6_length")

doc.recompute()
